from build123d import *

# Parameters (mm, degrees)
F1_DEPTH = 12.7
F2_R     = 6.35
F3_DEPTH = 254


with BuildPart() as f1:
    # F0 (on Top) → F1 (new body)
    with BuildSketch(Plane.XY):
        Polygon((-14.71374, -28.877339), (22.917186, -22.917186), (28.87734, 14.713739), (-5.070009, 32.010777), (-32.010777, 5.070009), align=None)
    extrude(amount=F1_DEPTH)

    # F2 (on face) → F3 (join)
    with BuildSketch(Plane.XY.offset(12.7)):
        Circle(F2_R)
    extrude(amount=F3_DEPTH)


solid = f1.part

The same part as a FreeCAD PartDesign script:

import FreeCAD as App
import Part
import Sketcher
Q = App.Units.Quantity


def add_polygon(sketch, points):
    """Adds a closed chain of lines whose ends are joined by coincident constraints."""
    first, n = sketch.GeometryCount, len(points)
    for a, b in zip(points, points[1:] + points[:1]):
        sketch.addGeometry(Part.LineSegment(App.Vector(*a, 0), App.Vector(*b, 0)), False)
    for i in range(n):
        sketch.addConstraint(Sketcher.Constraint("Coincident", first + i, 2, first + (i + 1) % n, 1))

doc = App.newDocument("Part")
params = doc.addObject("Spreadsheet::Sheet", "Params")
for row, (alias, value) in enumerate([
    ("sketch1_length", "1.5 in"),
    ("pad1_length", "0.5 in"),
    ("sketch2_diameter", "0.5 in"),
    ("pad2_length", "10 in"),
], start=1):
    params.set(f"A{row}", alias)
    params.set(f"B{row}", "=" + value)
    params.setAlias(f"B{row}", alias)

body = doc.addObject("PartDesign::Body", "Body")

# Sketch on XY plane
sketch1 = body.newObject("Sketcher::SketchObject", "Sketch")
sketch1.AttachmentSupport = (doc.getObject("XY_Plane"), [""])
sketch1.MapMode = "FlatFace"
add_polygon(sketch1, [(-15, -29), (23, -23), (29, 15), (-5, 32), (-32, 5)])  # lines 0-4
sketch1.addConstraint(Sketcher.Constraint("Equal", 0, 1))
sketch1.addConstraint(Sketcher.Constraint("Equal", 1, 2))
sketch1.addConstraint(Sketcher.Constraint("Equal", 2, 3))
sketch1.addConstraint(Sketcher.Constraint("Equal", 3, 4))
sketch1.addConstraint(Sketcher.Constraint("Angle", 0, Q("9 deg")))
sketch1.addConstraint(Sketcher.Constraint("Angle", 1, Q("80.999999 deg")))
sketch1.addConstraint(Sketcher.Constraint("Angle", 2, Q("153 deg")))
sketch1.addConstraint(Sketcher.Constraint("Distance", 0, Q("1.5 in")))
sketch1.addConstraint(Sketcher.Constraint("DistanceX", -1, 1, 1, 2, Q("28.87734 mm")))
sketch1.addConstraint(Sketcher.Constraint("DistanceY", -1, 1, 1, 2, Q("14.713739 mm")))
sketch1.setExpression("Constraints[12]", "Params.sketch1_length")
pad1 = body.newObject("PartDesign::Pad", "Pad")
pad1.Profile = sketch1
pad1.setExpression("Length", "Params.pad1_length")

# Sketch on XY plane
sketch2 = body.newObject("Sketcher::SketchObject", "Sketch001")
sketch2.AttachmentSupport = (doc.getObject("XY_Plane"), [""])
sketch2.MapMode = "FlatFace"
sketch2.AttachmentOffset = App.Placement(App.Vector(0, 0, 0.5 * 25.4), App.Rotation())
sketch2.addGeometry(Part.Circle(App.Vector(0, 0, 0), App.Vector(0, 0, 1), 6), False)
sketch2.addConstraint(Sketcher.Constraint("Coincident", 0, 3, -1, 1))
sketch2.addConstraint(Sketcher.Constraint("Diameter", 0, Q("0.5 in")))
sketch2.setExpression("Constraints[1]", "Params.sketch2_diameter")
pad2 = body.newObject("PartDesign::Pad", "Pad001")
pad2.Profile = sketch2
pad2.setExpression("Length", "Params.pad2_length")

doc.recompute()
